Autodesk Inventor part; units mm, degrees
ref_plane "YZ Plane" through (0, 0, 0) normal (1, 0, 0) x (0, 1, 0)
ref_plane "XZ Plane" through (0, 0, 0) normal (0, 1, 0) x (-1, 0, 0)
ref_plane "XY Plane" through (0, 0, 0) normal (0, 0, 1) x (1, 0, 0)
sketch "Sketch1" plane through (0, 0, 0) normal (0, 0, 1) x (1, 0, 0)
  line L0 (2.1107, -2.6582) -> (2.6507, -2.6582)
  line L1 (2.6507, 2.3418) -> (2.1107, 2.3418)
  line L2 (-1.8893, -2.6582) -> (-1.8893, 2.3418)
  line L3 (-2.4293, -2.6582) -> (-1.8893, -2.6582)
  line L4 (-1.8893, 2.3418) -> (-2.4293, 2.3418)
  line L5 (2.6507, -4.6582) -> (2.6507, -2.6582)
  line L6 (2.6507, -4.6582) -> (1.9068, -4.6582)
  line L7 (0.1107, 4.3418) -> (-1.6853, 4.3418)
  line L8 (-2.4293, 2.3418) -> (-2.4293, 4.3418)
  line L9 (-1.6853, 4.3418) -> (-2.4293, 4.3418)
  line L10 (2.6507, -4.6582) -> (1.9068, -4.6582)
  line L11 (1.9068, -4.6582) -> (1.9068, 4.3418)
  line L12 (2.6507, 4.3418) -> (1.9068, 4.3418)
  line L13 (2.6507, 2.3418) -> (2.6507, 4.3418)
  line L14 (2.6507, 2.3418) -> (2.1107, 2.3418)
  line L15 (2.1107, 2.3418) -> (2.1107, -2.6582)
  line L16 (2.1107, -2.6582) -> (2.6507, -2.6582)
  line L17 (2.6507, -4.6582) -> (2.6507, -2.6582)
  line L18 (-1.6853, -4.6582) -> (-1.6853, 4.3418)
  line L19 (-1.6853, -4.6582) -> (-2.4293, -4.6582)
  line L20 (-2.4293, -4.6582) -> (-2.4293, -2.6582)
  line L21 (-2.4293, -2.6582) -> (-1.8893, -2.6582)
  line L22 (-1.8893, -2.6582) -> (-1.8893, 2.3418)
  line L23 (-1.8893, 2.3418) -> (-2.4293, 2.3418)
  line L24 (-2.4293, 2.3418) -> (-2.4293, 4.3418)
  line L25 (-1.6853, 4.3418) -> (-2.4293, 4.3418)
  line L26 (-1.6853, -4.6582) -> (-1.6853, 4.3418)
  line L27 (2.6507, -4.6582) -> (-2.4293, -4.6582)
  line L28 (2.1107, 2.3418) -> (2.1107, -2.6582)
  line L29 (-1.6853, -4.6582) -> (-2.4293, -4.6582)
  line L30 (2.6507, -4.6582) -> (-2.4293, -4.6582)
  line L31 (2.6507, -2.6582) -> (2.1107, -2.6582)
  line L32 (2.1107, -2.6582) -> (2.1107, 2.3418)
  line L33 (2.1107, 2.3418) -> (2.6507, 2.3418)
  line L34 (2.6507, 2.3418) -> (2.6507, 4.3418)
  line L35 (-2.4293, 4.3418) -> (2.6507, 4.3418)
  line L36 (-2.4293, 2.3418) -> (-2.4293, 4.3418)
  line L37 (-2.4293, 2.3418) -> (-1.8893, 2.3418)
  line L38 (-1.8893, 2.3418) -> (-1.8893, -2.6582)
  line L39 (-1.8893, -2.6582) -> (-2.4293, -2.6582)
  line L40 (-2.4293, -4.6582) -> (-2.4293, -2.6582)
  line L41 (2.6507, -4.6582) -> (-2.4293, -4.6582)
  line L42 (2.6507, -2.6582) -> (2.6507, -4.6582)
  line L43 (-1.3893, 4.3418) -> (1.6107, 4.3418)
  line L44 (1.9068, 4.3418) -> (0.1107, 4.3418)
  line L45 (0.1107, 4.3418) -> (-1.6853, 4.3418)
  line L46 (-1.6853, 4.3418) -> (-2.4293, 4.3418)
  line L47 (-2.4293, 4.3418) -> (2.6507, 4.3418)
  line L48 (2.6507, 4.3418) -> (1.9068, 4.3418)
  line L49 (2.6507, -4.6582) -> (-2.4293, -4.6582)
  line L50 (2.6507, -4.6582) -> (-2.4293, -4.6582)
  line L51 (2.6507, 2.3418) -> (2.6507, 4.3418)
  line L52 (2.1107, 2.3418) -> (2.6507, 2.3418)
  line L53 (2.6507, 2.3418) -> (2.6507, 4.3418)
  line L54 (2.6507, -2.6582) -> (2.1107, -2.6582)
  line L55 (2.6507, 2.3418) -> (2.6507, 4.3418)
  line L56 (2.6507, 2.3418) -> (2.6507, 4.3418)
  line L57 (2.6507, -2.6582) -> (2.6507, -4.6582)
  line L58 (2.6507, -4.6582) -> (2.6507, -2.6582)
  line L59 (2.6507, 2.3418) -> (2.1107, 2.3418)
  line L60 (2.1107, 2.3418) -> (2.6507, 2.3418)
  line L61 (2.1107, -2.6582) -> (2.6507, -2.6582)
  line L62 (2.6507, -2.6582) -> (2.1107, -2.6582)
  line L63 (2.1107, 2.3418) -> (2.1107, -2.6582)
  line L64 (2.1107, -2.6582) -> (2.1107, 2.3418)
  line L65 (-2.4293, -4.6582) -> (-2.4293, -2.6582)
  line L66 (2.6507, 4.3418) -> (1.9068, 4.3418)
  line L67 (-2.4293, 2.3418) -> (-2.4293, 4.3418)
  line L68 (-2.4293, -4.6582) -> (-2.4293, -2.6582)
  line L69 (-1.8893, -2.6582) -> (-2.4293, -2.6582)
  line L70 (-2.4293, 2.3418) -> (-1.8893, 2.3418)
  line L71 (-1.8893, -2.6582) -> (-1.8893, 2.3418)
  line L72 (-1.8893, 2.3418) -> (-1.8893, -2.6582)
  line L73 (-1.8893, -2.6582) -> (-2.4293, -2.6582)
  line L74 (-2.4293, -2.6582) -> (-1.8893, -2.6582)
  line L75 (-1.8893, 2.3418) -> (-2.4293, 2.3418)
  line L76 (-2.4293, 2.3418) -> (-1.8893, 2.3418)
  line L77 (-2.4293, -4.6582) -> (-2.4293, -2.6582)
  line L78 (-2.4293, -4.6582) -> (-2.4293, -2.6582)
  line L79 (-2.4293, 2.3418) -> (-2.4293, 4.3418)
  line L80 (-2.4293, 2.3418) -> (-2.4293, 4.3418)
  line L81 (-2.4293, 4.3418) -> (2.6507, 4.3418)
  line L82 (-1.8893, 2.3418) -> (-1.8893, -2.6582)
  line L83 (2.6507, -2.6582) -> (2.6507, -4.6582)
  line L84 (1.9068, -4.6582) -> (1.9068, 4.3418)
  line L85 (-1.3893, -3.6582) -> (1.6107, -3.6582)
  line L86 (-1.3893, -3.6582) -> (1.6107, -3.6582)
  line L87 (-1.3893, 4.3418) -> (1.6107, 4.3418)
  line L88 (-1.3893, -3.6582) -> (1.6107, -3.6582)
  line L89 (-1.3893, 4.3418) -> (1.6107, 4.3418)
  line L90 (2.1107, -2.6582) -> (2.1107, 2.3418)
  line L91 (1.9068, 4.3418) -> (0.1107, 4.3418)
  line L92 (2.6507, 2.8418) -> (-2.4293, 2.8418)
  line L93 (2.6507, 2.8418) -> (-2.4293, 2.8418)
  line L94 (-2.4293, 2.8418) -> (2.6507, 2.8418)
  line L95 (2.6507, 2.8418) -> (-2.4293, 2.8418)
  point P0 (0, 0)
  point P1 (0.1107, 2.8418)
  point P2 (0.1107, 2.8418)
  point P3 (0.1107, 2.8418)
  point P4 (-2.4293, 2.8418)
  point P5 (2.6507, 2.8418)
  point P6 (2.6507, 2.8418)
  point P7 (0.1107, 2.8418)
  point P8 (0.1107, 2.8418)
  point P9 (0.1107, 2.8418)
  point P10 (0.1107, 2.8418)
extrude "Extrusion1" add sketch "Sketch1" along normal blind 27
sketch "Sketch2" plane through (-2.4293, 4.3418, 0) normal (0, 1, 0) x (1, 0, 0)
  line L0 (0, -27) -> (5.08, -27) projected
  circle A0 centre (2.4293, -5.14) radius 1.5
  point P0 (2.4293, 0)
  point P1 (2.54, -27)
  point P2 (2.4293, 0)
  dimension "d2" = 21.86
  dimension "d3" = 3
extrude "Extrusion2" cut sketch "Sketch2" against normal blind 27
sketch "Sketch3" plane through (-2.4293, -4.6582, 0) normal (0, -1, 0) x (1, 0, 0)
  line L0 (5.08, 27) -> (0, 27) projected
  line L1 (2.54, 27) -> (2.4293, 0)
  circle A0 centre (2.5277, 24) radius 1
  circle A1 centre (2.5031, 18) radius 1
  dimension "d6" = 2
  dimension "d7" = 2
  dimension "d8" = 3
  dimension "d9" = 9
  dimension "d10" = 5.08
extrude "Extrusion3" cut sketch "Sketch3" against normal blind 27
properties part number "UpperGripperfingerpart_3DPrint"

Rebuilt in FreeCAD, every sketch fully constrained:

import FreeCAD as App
import Part
import Sketcher

V = App.Vector

doc = App.newDocument("Part")
body = doc.addObject("PartDesign::Body", "Body")

# Sketch on XY plane
sketch1 = body.newObject("Sketcher::SketchObject", "Sketch")
sketch1.AttachmentSupport = (doc.getObject("XY_Plane"), [""])
sketch1.MapMode = "FlatFace"
sketch1.addGeometry(Part.LineSegment(V(2.7, -2.7, 0), V(2.1, -2.7, 0)), False)
sketch1.addGeometry(Part.LineSegment(V(2.1, -2.7, 0), V(2.1, 2.3, 0)), False)
sketch1.addGeometry(Part.LineSegment(V(2.1, 2.3, 0), V(2.7, 2.3, 0)), False)
sketch1.addGeometry(Part.LineSegment(V(2.7, 2.3, 0), V(2.7, 4.3, 0)), False)
sketch1.addGeometry(Part.LineSegment(V(2.7, 4.3, 0), V(-2.4, 4.3, 0)), False)
sketch1.addGeometry(Part.LineSegment(V(-2.4, 4.3, 0), V(-2.4, 2.3, 0)), False)
sketch1.addGeometry(Part.LineSegment(V(-2.4, 2.3, 0), V(-1.9, 2.3, 0)), False)
sketch1.addGeometry(Part.LineSegment(V(-1.9, 2.3, 0), V(-1.9, -2.7, 0)), False)
sketch1.addGeometry(Part.LineSegment(V(-1.9, -2.7, 0), V(-2.4, -2.7, 0)), False)
sketch1.addGeometry(Part.LineSegment(V(-2.4, -2.7, 0), V(-2.4, -4.7, 0)), False)
sketch1.addGeometry(Part.LineSegment(V(-2.4, -4.7, 0), V(2.7, -4.7, 0)), False)
sketch1.addGeometry(Part.LineSegment(V(2.7, -4.7, 0), V(2.7, -2.7, 0)), False)
sketch1.addConstraint(Sketcher.Constraint("Coincident", 0, 2, 1, 1))
sketch1.addConstraint(Sketcher.Constraint("Coincident", 1, 2, 2, 1))
sketch1.addConstraint(Sketcher.Constraint("Coincident", 2, 2, 3, 1))
sketch1.addConstraint(Sketcher.Constraint("Coincident", 3, 2, 4, 1))
sketch1.addConstraint(Sketcher.Constraint("Coincident", 4, 2, 5, 1))
sketch1.addConstraint(Sketcher.Constraint("Coincident", 5, 2, 6, 1))
sketch1.addConstraint(Sketcher.Constraint("Coincident", 6, 2, 7, 1))
sketch1.addConstraint(Sketcher.Constraint("Coincident", 7, 2, 8, 1))
sketch1.addConstraint(Sketcher.Constraint("Coincident", 8, 2, 9, 1))
sketch1.addConstraint(Sketcher.Constraint("Coincident", 9, 2, 10, 1))
sketch1.addConstraint(Sketcher.Constraint("Coincident", 10, 2, 11, 1))
sketch1.addConstraint(Sketcher.Constraint("Coincident", 11, 2, 0, 1))
sketch1.addConstraint(Sketcher.Constraint("Horizontal", 0))
sketch1.addConstraint(Sketcher.Constraint("Vertical", 1))
sketch1.addConstraint(Sketcher.Constraint("Horizontal", 2))
sketch1.addConstraint(Sketcher.Constraint("Vertical", 3))
sketch1.addConstraint(Sketcher.Constraint("Horizontal", 4))
sketch1.addConstraint(Sketcher.Constraint("Vertical", 5))
sketch1.addConstraint(Sketcher.Constraint("Horizontal", 6))
sketch1.addConstraint(Sketcher.Constraint("Vertical", 7))
sketch1.addConstraint(Sketcher.Constraint("Horizontal", 8))
sketch1.addConstraint(Sketcher.Constraint("Vertical", 9))
sketch1.addConstraint(Sketcher.Constraint("Horizontal", 10))
sketch1.addConstraint(Sketcher.Constraint("Vertical", 11))
sketch1.addConstraint(Sketcher.Constraint("Horizontal", 2, 2, 5, 2))
sketch1.addConstraint(Sketcher.Constraint("Horizontal", 0, 2, 7, 2))
sketch1.addConstraint(Sketcher.Constraint("Vertical", 5, 2, 8, 2))
sketch1.addConstraint(Sketcher.Constraint("Vertical", 3, 2, 10, 2))
sketch1.addConstraint(Sketcher.Constraint("Equal", 2, 6))
sketch1.addConstraint(Sketcher.Constraint("Equal", 5, 9))
sketch1.addConstraint(Sketcher.Constraint("DistanceY", 1, 1, 1, 2, 5.0))
sketch1.addConstraint(Sketcher.Constraint("DistanceY", 3, 1, 3, 2, 2.0))
sketch1.addConstraint(Sketcher.Constraint("DistanceX", 6, 2, 1, 2, 4.0))
sketch1.addConstraint(Sketcher.Constraint("DistanceX", 0, 2, 0, 1, 0.54))
sketch1.addConstraint(Sketcher.Constraint("DistanceX", -1, 1, 0, 2, 2.1107))
sketch1.addConstraint(Sketcher.Constraint("DistanceY", 0, 2, -1, 1, 2.6582))
pad1 = body.newObject("PartDesign::Pad", "Pad")
pad1.Profile = sketch1
pad1.Length = 27

# Sketch on XZ plane
sketch2 = body.newObject("Sketcher::SketchObject", "Sketch001")
sketch2.AttachmentSupport = (doc.getObject("XZ_Plane"), [""])
sketch2.MapMode = "FlatFace"
sketch2.AttachmentOffset = App.Placement(V(0, 0, -4.3418), App.Rotation())
sketch2.addGeometry(Part.Circle(V(0, 5.1, 0), V(0, 0, 1), 1.5), False)
sketch2.addConstraint(Sketcher.Constraint("PointOnObject", 0, 3, -2))
sketch2.addConstraint(Sketcher.Constraint("Diameter", 0, 3.0))
sketch2.addConstraint(Sketcher.Constraint("DistanceY", -1, 1, 0, 3, 5.14))
pocket1 = body.newObject("PartDesign::Pocket", "Pocket")
pocket1.Profile = sketch2
pocket1.Length = 27
pocket1.Reversed = True

# Sketch on XZ plane
sketch3 = body.newObject("Sketcher::SketchObject", "Sketch002")
sketch3.AttachmentSupport = (doc.getObject("XZ_Plane"), [""])
sketch3.MapMode = "FlatFace"
sketch3.AttachmentOffset = App.Placement(V(0, 0, 4.6582), App.Rotation())
sketch3.addGeometry(Part.Circle(V(0.1, 24, 0), V(0, 0, 1), 1), False)
sketch3.addGeometry(Part.Circle(V(0.1, 18, 0), V(0, 0, 1), 1), False)
sketch3.addConstraint(Sketcher.Constraint("Equal", 0, 1))
sketch3.addConstraint(Sketcher.Constraint("Diameter", 0, 2.0))
sketch3.addConstraint(Sketcher.Constraint("DistanceY", -1, 1, 0, 3, 24.0))
sketch3.addConstraint(Sketcher.Constraint("DistanceY", -1, 1, 1, 3, 18.0))
sketch3.addConstraint(Sketcher.Constraint("DistanceX", -1, 1, 0, 3, 0.0984))
sketch3.addConstraint(Sketcher.Constraint("DistanceX", -1, 1, 1, 3, 0.0738))
pocket2 = body.newObject("PartDesign::Pocket", "Pocket001")
pocket2.Profile = sketch3
pocket2.Length = 27

doc.recompute()
